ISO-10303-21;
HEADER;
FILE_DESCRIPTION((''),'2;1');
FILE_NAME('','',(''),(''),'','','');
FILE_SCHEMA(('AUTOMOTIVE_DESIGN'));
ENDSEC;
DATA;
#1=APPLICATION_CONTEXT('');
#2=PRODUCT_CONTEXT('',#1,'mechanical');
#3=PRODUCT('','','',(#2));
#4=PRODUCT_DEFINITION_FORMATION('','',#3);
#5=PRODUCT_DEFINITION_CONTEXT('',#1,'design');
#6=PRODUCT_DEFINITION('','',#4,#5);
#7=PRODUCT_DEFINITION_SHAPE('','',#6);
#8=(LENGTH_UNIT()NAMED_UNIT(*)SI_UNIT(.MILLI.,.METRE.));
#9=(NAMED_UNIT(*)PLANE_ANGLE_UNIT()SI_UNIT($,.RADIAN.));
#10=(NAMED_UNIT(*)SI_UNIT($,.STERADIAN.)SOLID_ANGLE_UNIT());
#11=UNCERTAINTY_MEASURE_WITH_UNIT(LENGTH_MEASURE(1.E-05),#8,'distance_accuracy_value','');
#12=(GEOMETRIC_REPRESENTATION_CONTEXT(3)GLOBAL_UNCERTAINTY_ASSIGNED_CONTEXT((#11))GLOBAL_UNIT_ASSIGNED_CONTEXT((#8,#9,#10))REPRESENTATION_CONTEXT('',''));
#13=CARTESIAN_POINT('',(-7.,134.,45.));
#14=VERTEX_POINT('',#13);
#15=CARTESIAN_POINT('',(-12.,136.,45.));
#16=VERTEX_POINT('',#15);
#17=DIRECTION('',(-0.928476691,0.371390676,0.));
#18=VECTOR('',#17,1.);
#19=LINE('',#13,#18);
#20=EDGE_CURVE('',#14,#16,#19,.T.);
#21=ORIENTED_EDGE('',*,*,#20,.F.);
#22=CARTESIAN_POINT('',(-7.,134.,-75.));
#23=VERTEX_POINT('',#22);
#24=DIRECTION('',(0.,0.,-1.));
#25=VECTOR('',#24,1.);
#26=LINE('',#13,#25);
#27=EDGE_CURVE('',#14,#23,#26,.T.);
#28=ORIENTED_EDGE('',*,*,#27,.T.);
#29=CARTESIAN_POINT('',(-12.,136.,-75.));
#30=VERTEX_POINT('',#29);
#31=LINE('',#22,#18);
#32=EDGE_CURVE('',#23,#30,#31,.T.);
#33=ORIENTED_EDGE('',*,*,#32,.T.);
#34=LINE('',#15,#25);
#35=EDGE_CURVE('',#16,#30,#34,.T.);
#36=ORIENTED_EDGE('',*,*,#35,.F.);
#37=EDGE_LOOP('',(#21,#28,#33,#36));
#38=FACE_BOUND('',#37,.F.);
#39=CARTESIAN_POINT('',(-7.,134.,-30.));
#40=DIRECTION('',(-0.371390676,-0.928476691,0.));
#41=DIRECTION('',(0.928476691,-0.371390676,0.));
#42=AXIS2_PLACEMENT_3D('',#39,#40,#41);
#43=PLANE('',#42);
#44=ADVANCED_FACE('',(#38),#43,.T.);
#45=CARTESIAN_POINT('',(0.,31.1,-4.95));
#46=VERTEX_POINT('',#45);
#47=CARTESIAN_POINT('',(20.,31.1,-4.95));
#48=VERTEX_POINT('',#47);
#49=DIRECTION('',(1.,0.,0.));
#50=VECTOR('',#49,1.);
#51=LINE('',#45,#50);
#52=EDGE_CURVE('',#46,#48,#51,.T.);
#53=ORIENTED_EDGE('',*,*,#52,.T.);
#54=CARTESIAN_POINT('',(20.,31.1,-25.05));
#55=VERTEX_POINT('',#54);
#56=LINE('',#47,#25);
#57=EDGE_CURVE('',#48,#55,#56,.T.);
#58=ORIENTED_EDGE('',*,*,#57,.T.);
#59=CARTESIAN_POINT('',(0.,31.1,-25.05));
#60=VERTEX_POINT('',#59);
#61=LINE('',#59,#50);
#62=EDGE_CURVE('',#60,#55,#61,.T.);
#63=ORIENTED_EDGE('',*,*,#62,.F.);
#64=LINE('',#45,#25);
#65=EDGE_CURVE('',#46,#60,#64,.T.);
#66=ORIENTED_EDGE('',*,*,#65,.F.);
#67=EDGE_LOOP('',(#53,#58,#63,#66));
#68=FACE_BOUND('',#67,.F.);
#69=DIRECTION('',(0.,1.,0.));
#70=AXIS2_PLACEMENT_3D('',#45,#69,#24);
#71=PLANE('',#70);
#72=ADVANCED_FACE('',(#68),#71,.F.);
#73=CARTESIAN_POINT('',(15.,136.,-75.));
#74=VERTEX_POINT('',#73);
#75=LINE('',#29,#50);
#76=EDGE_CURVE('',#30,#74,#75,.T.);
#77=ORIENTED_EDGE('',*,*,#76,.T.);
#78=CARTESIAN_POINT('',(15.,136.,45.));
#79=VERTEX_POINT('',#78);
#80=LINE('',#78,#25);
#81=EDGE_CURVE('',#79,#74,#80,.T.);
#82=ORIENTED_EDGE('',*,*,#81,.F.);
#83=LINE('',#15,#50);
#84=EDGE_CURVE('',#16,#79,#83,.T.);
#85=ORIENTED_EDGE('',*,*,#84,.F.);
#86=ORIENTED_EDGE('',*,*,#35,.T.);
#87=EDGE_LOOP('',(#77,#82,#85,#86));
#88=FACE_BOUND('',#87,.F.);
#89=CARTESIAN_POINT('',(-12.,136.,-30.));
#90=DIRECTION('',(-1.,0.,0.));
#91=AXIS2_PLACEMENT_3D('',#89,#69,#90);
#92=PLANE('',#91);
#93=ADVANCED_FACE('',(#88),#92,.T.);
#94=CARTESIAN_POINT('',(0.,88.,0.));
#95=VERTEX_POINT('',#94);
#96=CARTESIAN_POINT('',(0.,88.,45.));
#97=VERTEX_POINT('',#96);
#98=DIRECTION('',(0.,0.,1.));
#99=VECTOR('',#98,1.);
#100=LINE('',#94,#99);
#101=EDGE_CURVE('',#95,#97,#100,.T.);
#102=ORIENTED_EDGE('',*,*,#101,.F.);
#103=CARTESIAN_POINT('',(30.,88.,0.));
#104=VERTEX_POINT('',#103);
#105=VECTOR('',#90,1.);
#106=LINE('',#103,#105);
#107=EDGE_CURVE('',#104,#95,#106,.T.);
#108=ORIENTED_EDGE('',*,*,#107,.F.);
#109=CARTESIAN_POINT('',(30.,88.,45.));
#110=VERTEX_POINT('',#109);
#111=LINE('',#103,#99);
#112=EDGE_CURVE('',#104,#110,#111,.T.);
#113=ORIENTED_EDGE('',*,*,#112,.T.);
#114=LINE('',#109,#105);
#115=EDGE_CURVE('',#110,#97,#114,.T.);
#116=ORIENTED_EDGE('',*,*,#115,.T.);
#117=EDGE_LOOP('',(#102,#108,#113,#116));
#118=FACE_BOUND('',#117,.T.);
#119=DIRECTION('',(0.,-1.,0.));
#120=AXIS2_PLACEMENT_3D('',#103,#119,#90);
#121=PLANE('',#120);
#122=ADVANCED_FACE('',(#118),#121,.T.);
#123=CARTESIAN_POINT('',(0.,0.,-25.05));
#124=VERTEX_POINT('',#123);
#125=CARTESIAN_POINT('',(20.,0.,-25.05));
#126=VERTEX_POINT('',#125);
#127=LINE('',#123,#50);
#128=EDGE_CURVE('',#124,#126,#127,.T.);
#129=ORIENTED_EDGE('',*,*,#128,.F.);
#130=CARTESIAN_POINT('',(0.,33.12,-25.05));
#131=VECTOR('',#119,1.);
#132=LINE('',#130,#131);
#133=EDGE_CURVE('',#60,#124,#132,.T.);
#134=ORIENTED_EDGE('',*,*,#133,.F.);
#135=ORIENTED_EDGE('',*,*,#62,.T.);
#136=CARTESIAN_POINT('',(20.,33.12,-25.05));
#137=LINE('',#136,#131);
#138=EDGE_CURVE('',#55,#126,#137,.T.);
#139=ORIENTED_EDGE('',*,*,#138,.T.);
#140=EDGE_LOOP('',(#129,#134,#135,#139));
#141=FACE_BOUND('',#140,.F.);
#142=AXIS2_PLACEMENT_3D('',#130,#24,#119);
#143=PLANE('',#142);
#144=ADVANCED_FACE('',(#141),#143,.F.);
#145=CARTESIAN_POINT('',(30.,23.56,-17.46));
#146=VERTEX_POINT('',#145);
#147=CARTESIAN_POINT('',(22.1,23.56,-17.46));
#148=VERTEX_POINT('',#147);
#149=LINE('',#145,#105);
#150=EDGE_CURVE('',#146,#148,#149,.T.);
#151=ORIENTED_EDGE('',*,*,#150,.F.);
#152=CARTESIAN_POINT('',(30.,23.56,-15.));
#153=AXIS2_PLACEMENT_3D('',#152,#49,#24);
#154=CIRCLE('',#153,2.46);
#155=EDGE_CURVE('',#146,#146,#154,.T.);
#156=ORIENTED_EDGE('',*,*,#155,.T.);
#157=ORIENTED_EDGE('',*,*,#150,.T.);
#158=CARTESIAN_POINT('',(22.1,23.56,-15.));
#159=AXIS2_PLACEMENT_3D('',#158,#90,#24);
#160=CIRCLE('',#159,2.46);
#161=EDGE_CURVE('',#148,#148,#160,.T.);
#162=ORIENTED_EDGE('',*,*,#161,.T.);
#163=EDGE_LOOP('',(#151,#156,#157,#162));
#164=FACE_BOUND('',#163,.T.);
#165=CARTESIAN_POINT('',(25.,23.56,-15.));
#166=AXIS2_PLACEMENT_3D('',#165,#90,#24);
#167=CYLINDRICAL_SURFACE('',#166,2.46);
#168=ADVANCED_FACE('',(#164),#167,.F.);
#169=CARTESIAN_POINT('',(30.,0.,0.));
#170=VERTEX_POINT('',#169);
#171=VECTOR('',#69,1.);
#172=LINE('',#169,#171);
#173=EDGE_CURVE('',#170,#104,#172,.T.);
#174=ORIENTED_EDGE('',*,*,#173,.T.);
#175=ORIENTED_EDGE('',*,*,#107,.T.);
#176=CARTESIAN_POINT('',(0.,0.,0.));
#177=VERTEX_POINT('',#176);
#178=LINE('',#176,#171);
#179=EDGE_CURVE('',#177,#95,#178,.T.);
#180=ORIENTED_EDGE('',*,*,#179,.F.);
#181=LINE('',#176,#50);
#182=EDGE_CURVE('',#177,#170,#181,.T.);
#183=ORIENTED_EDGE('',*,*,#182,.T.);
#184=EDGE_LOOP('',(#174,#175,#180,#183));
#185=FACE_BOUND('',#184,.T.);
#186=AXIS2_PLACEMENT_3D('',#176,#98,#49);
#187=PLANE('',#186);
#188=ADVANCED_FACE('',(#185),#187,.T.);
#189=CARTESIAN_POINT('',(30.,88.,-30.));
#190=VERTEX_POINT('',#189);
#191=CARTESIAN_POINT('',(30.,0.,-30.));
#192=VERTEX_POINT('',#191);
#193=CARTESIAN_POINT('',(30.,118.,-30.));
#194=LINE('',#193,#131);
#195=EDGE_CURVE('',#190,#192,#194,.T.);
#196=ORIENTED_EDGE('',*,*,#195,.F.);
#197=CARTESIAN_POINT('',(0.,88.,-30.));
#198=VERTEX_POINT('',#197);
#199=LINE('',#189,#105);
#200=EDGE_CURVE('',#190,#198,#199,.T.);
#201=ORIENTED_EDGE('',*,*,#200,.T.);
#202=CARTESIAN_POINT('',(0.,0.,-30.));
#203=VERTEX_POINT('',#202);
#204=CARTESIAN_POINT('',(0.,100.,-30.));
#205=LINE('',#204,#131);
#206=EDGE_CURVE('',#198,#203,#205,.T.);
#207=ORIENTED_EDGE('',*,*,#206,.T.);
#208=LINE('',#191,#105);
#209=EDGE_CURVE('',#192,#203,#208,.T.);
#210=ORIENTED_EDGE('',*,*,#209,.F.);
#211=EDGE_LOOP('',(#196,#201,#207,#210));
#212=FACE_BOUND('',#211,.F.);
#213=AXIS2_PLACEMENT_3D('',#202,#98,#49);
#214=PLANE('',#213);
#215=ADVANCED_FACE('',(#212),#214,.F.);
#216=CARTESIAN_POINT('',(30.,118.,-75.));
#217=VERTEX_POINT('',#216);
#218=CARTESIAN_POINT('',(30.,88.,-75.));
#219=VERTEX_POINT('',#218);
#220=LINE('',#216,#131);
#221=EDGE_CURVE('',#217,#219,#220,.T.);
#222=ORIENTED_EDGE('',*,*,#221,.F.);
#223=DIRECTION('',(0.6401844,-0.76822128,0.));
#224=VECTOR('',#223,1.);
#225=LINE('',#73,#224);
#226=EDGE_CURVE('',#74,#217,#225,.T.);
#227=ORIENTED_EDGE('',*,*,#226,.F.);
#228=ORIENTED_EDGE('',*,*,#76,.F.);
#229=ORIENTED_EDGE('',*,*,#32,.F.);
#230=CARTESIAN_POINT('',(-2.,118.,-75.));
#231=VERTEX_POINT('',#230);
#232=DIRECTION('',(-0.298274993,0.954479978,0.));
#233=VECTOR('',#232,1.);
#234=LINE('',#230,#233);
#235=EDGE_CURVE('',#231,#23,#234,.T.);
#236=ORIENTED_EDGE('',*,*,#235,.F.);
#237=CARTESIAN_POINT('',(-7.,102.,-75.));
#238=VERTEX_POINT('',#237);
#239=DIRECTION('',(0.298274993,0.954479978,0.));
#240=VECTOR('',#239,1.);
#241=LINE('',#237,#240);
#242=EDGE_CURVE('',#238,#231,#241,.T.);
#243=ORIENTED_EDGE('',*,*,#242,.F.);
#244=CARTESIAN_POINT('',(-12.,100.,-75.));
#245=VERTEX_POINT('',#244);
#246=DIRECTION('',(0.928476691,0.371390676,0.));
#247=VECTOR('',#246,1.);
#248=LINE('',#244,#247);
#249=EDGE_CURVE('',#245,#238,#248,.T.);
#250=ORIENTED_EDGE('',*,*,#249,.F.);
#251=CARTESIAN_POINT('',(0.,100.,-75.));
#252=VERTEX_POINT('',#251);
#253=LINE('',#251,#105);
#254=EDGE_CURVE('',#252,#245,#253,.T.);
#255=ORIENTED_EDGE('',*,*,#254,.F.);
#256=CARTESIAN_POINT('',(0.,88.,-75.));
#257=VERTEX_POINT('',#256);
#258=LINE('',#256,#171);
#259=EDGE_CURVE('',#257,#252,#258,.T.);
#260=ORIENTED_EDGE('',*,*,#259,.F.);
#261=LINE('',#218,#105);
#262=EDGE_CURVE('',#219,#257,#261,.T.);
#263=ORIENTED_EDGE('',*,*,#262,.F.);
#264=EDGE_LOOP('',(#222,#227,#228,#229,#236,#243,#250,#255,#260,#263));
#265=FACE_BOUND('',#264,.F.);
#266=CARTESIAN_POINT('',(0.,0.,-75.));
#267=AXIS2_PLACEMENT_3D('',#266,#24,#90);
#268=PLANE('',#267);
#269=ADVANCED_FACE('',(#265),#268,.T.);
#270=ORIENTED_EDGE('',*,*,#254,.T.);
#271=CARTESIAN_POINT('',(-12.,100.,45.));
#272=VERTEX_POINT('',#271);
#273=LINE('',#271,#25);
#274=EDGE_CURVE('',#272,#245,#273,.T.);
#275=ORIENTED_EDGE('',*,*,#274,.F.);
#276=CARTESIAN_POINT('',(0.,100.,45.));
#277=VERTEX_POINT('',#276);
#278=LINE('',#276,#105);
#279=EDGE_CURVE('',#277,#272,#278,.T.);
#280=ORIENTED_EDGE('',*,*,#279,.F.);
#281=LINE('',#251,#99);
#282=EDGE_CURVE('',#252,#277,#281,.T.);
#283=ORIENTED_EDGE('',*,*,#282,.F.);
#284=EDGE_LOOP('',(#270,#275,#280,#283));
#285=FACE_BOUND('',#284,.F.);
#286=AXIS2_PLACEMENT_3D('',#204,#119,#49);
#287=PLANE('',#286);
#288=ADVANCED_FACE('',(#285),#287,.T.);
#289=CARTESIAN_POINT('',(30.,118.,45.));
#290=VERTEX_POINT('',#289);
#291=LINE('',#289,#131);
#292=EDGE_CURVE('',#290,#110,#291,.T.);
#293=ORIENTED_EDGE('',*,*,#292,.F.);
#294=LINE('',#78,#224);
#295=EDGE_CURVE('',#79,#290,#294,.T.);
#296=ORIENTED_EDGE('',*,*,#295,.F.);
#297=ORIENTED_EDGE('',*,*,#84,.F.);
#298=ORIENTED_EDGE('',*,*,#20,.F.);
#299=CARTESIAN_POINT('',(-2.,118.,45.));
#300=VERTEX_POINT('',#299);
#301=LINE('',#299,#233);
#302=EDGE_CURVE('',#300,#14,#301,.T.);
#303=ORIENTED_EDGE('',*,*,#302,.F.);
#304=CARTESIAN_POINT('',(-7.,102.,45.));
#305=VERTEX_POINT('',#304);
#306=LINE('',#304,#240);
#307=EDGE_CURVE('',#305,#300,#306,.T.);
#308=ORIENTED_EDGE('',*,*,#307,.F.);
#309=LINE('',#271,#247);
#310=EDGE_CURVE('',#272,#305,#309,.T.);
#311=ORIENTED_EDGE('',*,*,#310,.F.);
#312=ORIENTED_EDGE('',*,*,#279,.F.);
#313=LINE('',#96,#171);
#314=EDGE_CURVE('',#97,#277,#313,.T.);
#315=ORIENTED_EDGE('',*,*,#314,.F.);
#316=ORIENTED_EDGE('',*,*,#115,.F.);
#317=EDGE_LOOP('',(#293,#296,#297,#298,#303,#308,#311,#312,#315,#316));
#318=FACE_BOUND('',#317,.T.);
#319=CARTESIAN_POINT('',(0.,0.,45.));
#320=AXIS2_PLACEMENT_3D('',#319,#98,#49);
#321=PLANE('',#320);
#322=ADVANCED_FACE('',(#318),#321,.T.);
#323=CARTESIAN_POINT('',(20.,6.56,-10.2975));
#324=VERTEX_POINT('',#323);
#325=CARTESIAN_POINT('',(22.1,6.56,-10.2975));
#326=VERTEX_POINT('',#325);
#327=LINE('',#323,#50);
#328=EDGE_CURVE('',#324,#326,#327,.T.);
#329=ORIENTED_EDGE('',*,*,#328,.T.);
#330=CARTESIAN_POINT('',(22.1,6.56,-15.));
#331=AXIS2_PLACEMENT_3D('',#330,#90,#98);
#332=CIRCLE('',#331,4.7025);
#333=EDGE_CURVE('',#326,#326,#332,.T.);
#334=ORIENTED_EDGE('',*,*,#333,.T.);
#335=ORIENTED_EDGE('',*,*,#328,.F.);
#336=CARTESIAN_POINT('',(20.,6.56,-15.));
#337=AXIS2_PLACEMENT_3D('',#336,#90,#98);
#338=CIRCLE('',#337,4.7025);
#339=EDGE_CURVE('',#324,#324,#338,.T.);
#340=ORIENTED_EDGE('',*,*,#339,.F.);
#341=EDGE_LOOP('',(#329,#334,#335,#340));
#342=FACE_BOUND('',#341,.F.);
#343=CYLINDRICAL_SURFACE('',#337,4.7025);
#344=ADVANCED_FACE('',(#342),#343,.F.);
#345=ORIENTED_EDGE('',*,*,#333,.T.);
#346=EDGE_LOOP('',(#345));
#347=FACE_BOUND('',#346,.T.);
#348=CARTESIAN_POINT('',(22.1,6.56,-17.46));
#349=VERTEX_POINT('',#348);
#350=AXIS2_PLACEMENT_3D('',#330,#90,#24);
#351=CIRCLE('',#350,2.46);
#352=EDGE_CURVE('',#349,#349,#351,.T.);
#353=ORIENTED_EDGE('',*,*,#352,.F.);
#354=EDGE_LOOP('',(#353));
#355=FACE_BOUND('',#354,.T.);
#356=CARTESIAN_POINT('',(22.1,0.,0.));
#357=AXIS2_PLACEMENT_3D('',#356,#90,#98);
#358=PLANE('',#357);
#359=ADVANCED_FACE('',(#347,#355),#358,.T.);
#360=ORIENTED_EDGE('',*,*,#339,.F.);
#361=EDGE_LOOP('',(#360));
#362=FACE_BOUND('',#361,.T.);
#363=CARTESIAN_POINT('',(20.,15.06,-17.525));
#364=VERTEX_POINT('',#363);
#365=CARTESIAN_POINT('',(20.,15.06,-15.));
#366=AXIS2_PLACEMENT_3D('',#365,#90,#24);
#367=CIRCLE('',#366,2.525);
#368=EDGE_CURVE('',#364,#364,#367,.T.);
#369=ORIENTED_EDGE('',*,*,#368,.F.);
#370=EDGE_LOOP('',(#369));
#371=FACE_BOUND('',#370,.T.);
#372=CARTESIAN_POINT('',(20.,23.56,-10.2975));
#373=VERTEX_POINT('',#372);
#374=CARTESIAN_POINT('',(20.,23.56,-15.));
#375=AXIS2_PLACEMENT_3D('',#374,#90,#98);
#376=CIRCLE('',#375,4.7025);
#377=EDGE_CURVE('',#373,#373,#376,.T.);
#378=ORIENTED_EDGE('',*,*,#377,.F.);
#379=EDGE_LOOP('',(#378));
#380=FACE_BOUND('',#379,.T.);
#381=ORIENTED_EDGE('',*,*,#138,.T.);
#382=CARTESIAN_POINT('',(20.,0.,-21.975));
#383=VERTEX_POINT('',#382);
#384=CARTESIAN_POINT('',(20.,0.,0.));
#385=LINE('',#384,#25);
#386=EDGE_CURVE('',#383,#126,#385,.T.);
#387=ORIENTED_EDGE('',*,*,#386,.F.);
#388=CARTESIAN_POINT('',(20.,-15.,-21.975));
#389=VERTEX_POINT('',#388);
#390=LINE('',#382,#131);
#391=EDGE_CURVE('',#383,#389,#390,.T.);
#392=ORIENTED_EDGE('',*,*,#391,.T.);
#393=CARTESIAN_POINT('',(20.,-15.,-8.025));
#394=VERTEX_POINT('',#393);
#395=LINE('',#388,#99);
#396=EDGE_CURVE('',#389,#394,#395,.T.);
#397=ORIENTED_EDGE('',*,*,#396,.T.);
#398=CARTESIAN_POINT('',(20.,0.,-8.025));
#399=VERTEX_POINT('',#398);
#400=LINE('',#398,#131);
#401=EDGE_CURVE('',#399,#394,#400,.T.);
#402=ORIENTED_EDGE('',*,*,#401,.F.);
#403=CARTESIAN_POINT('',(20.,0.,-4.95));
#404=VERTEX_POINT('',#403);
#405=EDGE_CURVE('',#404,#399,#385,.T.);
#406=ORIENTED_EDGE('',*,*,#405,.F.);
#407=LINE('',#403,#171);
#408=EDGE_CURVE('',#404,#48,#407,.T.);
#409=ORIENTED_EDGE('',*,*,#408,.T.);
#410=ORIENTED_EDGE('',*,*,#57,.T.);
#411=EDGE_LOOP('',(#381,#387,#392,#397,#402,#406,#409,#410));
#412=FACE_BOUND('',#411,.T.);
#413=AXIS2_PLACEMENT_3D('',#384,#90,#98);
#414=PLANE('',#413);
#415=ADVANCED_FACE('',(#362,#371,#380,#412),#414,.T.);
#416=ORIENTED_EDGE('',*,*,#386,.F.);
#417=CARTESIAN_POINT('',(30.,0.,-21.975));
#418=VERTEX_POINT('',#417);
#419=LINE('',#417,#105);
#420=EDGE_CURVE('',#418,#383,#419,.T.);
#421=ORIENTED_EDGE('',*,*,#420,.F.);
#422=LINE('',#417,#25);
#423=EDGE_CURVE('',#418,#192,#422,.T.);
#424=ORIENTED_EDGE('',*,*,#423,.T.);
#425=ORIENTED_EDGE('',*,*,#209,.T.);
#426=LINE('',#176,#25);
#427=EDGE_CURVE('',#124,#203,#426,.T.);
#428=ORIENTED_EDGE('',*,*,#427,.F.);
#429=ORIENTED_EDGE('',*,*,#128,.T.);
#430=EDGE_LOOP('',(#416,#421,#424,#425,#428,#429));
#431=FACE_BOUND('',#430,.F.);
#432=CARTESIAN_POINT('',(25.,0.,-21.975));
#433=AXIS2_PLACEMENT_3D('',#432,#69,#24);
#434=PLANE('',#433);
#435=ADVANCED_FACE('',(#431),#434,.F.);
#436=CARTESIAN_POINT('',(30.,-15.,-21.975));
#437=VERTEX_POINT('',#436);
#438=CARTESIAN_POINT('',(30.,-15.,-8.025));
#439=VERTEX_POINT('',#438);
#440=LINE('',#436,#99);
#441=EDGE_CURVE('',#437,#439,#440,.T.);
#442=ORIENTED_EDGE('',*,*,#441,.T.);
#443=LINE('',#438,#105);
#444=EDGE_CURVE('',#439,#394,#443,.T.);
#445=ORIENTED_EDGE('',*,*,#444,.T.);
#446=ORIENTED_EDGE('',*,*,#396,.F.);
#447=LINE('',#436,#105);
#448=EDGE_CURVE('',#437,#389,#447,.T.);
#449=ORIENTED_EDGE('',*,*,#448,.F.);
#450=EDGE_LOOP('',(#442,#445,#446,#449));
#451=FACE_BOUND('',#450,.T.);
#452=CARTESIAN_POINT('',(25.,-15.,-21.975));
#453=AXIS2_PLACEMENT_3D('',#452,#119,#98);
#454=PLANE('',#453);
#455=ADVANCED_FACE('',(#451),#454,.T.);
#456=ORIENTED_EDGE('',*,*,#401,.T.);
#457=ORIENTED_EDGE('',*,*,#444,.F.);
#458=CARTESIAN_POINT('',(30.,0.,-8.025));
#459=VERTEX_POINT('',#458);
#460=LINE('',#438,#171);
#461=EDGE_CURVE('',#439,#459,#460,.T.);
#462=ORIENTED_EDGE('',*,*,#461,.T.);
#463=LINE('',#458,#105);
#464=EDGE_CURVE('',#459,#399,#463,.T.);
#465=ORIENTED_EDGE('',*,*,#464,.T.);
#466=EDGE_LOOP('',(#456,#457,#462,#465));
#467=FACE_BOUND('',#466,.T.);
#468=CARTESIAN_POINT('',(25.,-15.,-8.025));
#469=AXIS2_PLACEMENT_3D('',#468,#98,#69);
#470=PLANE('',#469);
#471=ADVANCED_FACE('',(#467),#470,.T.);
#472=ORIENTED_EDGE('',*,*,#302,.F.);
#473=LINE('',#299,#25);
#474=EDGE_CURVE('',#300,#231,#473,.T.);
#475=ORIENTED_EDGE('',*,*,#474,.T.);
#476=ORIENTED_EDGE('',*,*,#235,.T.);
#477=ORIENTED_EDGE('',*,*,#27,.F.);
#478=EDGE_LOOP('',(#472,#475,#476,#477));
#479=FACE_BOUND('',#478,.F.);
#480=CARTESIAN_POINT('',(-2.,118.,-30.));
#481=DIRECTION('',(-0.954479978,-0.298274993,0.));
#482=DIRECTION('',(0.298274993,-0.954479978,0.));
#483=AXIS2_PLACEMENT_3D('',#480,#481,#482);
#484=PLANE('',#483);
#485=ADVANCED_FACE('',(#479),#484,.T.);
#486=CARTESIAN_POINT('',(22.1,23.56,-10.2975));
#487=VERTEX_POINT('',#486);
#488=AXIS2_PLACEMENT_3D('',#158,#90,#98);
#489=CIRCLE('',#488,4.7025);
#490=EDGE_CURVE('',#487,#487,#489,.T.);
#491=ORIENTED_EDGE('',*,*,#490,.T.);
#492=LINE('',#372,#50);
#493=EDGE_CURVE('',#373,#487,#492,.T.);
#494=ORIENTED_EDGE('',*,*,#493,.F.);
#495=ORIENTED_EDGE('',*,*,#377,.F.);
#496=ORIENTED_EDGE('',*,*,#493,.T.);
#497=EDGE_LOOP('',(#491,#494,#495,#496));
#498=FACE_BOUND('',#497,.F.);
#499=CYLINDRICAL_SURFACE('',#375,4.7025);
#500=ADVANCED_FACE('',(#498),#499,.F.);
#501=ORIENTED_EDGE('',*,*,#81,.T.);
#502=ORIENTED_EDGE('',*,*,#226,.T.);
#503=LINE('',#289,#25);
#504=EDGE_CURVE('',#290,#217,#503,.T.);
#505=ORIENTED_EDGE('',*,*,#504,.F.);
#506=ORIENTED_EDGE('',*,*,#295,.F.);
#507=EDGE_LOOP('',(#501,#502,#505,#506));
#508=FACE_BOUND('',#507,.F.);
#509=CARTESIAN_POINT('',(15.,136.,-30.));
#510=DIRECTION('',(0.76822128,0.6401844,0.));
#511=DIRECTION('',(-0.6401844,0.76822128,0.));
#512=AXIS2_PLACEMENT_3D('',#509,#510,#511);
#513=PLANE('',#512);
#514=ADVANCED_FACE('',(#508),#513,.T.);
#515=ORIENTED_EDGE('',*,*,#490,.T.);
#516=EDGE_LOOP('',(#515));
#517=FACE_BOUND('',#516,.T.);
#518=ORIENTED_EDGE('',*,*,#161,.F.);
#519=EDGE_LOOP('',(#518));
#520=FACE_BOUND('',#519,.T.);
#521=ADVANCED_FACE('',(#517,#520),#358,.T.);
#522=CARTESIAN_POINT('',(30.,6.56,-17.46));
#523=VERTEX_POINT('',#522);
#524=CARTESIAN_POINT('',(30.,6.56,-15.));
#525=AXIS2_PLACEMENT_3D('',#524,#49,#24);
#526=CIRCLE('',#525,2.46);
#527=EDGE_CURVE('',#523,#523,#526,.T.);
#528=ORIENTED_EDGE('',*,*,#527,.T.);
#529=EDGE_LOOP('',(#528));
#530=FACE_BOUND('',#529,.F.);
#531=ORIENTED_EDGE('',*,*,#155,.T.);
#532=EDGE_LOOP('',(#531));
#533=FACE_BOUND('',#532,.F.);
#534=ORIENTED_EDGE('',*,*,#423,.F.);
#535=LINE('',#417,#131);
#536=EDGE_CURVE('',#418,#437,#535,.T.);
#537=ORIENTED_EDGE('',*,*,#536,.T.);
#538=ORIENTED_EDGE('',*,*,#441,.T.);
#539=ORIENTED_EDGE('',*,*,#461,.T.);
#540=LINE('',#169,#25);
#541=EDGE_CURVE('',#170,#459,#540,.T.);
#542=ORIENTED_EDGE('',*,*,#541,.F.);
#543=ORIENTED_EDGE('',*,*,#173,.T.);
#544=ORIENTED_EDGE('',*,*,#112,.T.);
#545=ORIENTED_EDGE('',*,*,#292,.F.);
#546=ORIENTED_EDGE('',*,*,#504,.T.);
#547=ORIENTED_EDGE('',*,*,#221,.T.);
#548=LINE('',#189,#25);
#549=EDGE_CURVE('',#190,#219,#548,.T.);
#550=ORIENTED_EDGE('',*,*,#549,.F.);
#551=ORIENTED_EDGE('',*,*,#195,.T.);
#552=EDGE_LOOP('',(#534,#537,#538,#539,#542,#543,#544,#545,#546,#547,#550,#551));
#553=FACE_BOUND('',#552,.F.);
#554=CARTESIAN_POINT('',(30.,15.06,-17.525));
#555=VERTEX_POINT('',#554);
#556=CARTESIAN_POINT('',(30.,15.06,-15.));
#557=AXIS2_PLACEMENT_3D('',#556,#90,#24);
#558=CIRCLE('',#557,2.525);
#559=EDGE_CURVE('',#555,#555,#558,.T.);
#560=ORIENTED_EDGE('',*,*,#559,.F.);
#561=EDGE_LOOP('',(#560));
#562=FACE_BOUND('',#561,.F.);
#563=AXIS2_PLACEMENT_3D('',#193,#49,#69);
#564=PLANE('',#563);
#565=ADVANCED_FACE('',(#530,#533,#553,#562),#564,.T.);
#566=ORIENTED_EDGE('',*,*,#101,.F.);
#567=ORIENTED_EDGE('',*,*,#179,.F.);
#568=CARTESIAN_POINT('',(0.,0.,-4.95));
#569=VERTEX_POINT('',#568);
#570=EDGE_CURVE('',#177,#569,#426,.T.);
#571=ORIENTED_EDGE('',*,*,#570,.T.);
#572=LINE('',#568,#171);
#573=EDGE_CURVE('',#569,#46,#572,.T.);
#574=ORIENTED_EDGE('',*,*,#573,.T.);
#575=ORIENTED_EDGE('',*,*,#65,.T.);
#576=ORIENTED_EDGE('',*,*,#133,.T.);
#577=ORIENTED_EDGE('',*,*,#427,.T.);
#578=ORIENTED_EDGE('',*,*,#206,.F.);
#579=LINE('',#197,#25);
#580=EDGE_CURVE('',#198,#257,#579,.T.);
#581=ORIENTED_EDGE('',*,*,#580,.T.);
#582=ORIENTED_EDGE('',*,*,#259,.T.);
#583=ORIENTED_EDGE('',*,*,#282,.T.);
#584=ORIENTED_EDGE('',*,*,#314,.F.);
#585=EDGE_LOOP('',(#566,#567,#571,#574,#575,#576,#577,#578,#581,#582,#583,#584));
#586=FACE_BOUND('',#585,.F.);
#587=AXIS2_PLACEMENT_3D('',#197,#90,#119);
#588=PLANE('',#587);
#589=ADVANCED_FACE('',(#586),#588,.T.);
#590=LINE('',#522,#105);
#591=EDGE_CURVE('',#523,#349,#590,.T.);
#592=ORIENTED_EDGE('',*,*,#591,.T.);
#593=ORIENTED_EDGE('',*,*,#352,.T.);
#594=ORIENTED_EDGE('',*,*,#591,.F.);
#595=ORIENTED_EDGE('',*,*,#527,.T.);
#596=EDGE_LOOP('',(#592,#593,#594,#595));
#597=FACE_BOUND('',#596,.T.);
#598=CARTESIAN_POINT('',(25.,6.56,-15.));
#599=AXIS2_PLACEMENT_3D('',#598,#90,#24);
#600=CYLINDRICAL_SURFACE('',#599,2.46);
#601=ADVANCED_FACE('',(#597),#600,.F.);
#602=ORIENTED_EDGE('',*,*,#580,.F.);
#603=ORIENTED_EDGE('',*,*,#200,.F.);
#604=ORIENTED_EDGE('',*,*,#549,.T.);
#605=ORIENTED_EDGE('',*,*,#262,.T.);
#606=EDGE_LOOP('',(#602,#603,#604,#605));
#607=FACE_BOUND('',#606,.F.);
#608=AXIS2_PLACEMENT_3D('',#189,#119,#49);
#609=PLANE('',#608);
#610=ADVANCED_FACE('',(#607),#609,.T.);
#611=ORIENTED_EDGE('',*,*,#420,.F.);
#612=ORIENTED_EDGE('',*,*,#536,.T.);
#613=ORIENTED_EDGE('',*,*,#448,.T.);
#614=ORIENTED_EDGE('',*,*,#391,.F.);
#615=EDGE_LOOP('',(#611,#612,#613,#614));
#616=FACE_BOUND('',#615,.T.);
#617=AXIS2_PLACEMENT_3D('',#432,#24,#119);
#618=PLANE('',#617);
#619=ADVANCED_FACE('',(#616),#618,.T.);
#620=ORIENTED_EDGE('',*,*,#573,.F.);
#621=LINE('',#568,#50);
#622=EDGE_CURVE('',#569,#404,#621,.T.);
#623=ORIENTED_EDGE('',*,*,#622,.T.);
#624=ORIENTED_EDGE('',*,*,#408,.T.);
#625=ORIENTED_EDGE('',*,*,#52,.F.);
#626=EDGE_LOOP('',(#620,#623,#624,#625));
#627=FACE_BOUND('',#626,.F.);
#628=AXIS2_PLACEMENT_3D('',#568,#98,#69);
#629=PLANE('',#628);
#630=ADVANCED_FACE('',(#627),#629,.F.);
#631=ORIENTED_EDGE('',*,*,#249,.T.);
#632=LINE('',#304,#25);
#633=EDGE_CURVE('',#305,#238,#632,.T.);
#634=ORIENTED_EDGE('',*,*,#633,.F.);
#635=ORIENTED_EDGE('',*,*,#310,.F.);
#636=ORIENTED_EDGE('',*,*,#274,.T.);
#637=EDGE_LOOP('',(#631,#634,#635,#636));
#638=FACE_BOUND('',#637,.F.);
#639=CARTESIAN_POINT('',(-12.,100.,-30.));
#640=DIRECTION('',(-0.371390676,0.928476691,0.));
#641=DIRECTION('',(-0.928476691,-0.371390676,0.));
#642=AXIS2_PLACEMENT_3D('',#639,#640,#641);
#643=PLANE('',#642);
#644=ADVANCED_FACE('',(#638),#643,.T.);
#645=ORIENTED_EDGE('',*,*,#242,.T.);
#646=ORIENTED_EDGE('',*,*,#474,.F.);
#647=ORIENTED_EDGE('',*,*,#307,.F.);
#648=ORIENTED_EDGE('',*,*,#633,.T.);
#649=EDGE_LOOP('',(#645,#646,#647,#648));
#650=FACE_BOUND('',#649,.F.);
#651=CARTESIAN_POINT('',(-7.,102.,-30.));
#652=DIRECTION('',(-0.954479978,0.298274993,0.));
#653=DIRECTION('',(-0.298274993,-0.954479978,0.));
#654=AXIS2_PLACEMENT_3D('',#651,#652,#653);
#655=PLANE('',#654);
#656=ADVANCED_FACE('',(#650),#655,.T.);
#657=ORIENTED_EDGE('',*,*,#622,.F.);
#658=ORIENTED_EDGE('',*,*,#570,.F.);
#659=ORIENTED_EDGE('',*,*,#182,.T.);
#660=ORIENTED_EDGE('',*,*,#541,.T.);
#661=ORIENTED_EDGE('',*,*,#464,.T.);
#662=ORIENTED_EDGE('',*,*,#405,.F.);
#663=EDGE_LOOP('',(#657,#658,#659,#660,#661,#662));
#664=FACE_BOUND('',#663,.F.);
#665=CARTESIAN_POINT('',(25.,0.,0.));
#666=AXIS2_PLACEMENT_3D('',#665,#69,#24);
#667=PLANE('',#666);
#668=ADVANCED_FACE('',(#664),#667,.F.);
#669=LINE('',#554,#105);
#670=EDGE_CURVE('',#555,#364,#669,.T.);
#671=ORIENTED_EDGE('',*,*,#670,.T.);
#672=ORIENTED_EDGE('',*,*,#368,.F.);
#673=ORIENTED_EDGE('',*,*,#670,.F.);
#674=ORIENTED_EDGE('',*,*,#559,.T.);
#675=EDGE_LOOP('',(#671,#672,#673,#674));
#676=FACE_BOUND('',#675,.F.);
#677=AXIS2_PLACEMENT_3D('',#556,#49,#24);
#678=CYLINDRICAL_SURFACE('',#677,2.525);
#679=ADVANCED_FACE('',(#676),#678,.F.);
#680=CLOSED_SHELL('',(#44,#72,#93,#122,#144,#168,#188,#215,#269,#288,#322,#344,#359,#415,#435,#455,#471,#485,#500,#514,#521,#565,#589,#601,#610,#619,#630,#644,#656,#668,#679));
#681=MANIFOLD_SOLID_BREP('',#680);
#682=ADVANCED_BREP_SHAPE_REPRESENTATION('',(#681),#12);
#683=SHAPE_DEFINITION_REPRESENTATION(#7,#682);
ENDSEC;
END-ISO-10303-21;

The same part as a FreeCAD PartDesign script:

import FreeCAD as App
import Part
import Sketcher
Q = App.Units.Quantity

doc = App.newDocument("Part")
body = doc.addObject("PartDesign::Body", "Body")

# Sketch on XY plane
sketch1 = doc.addObject("Sketcher::SketchObject", "Sketch")
body.addObject(sketch1)
sketch1.AttachmentSupport = (doc.XY_Plane, [""])
sketch1.MapMode = "FlatFace"
sketch1.addGeometry(Part.LineSegment(App.Vector(0, 40, 0), App.Vector(0, 0, 0)), False)
sketch1.addGeometry(Part.LineSegment(App.Vector(0, 0, 0), App.Vector(25, 0, 0)), False)
sketch1.addGeometry(Part.LineSegment(App.Vector(25, 0, 0), App.Vector(25, 40, 0)), False)
sketch1.addGeometry(Part.LineSegment(App.Vector(25, 40, 0), App.Vector(0, 40, 0)), False)
sketch1.addConstraint(Sketcher.Constraint("Coincident", 0, 2, 1, 1))
sketch1.addConstraint(Sketcher.Constraint("Coincident", 1, 2, 2, 1))
sketch1.addConstraint(Sketcher.Constraint("Coincident", 2, 2, 3, 1))
sketch1.addConstraint(Sketcher.Constraint("Coincident", 3, 2, 0, 1))
sketch1.addConstraint(Sketcher.Constraint("Vertical", 0))
sketch1.addConstraint(Sketcher.Constraint("Horizontal", 1))
sketch1.addConstraint(Sketcher.Constraint("Vertical", 2))
sketch1.addConstraint(Sketcher.Constraint("Horizontal", 3))
sketch1.addConstraint(Sketcher.Constraint("Coincident", 0, 2, -1, 1))
sketch1.addConstraint(Sketcher.Constraint("DistanceX", 1, 1, 1, 2, Q("25 mm")))
sketch1.addConstraint(Sketcher.Constraint("DistanceY", 0, 2, 0, 1, Q("40 mm")))
pad1 = doc.addObject("PartDesign::Pad", "Pad")
body.addObject(pad1)
pad1.Profile = sketch1
pad1.Length = 30
pad1.Reversed = True

# Sketch on YZ plane
sketch2 = doc.addObject("Sketcher::SketchObject", "Sketch001")
body.addObject(sketch2)
sketch2.AttachmentSupport = (doc.YZ_Plane, [""])
sketch2.MapMode = "FlatFace"
sketch2.AttachmentOffset = App.Placement(App.Vector(0, 0, 25), App.Rotation())
sketch2.addGeometry(Part.Circle(App.Vector(6.6, -15, 0), App.Vector(0, 0, 1), 2.5), False)
sketch2.addConstraint(Sketcher.Constraint("Diameter", 0, Q("4.92 mm")))
sketch2.addConstraint(Sketcher.Constraint("DistanceY", 0, 3, -1, 1, Q("15 mm")))
sketch2.addConstraint(Sketcher.Constraint("DistanceX", -1, 1, 0, 3, Q("6.56 mm")))
pocket1 = doc.addObject("PartDesign::Pocket", "Pocket")
body.addObject(pocket1)
pocket1.Profile = sketch2
pocket1.Length = 30

# Sketch on YZ plane
sketch3 = doc.addObject("Sketcher::SketchObject", "Sketch002")
body.addObject(sketch3)
sketch3.AttachmentSupport = (doc.YZ_Plane, [""])
sketch3.MapMode = "FlatFace"
sketch3.addGeometry(Part.LineSegment(App.Vector(0, -25, 0), App.Vector(0, -5, 0)), False)
sketch3.addGeometry(Part.LineSegment(App.Vector(0, -5, 0), App.Vector(33, -5, 0)), False)
sketch3.addGeometry(Part.LineSegment(App.Vector(33, -5, 0), App.Vector(33, -25, 0)), False)
sketch3.addGeometry(Part.LineSegment(App.Vector(33, -25, 0), App.Vector(0, -25, 0)), False)
sketch3.addConstraint(Sketcher.Constraint("Coincident", 0, 2, 1, 1))
sketch3.addConstraint(Sketcher.Constraint("Coincident", 1, 2, 2, 1))
sketch3.addConstraint(Sketcher.Constraint("Coincident", 2, 2, 3, 1))
sketch3.addConstraint(Sketcher.Constraint("Coincident", 3, 2, 0, 1))
sketch3.addConstraint(Sketcher.Constraint("Vertical", 0))
sketch3.addConstraint(Sketcher.Constraint("Horizontal", 1))
sketch3.addConstraint(Sketcher.Constraint("Vertical", 2))
sketch3.addConstraint(Sketcher.Constraint("Horizontal", 3))
sketch3.addConstraint(Sketcher.Constraint("PointOnObject", 0, 2, -2))
sketch3.addConstraint(Sketcher.Constraint("DistanceY", 0, 1, 0, 2, Q("20.1 mm")))
sketch3.addConstraint(Sketcher.Constraint("DistanceX", 1, 1, 1, 2, Q("33.12 mm")))
sketch3.addConstraint(Sketcher.Constraint("DistanceY", 0, 2, -1, 1, Q("4.95 mm")))
pocket2 = doc.addObject("PartDesign::Pocket", "Pocket001")
body.addObject(pocket2)
pocket2.Profile = sketch3
pocket2.Length = 20
pocket2.Reversed = True

# Sketch on XZ plane
sketch4 = doc.addObject("Sketcher::SketchObject", "Sketch003")
body.addObject(sketch4)
sketch4.AttachmentSupport = (doc.XZ_Plane, [""])
sketch4.MapMode = "FlatFace"
sketch4.addGeometry(Part.LineSegment(App.Vector(25, -8, 0), App.Vector(20, -8, 0)), False)
sketch4.addGeometry(Part.LineSegment(App.Vector(20, -8, 0), App.Vector(20, -22, 0)), False)
sketch4.addGeometry(Part.LineSegment(App.Vector(20, -22, 0), App.Vector(25, -22, 0)), False)
sketch4.addGeometry(Part.LineSegment(App.Vector(25, -22, 0), App.Vector(25, -8, 0)), False)
sketch4.addConstraint(Sketcher.Constraint("Coincident", 0, 2, 1, 1))
sketch4.addConstraint(Sketcher.Constraint("Coincident", 1, 2, 2, 1))
sketch4.addConstraint(Sketcher.Constraint("Coincident", 2, 2, 3, 1))
sketch4.addConstraint(Sketcher.Constraint("Coincident", 3, 2, 0, 1))
sketch4.addConstraint(Sketcher.Constraint("Horizontal", 0))
sketch4.addConstraint(Sketcher.Constraint("Vertical", 1))
sketch4.addConstraint(Sketcher.Constraint("Horizontal", 2))
sketch4.addConstraint(Sketcher.Constraint("Vertical", 3))
sketch4.addConstraint(Sketcher.Constraint("DistanceY", 1, 2, 1, 1, Q("13.95 mm")))
sketch4.addConstraint(Sketcher.Constraint("DistanceX", 0, 2, 0, 1, Q("5 mm")))
sketch4.addConstraint(Sketcher.Constraint("DistanceX", -1, 1, 0, 2, Q("20 mm")))
sketch4.addConstraint(Sketcher.Constraint("DistanceY", 0, 2, -1, 1, Q("8.025 mm")))
pad2 = doc.addObject("PartDesign::Pad", "Pad001")
body.addObject(pad2)
pad2.Profile = sketch4
pad2.Length = 15

# Sketch on YZ plane
sketch5 = doc.addObject("Sketcher::SketchObject", "Sketch004")
body.addObject(sketch5)
sketch5.AttachmentSupport = (doc.YZ_Plane, [""])
sketch5.MapMode = "FlatFace"
sketch5.AttachmentOffset = App.Placement(App.Vector(0, 0, 20), App.Rotation())
sketch5.addGeometry(Part.Circle(App.Vector(6.6, -15, 0), App.Vector(0, 0, 1), 4.7), False)
sketch5.addGeometry(Part.Circle(App.Vector(6.6, -15, 0), App.Vector(0, 0, 1), 2.5), False)
sketch5.addConstraint(Sketcher.Constraint("Coincident", 1, 3, 0, 3))
sketch5.addConstraint(Sketcher.Constraint("Diameter", 0, Q("9.405 mm")))
sketch5.addConstraint(Sketcher.Constraint("Diameter", 1, Q("4.92 mm")))
sketch5.addConstraint(Sketcher.Constraint("DistanceY", 0, 3, -1, 1, Q("15 mm")))
sketch5.addConstraint(Sketcher.Constraint("DistanceX", -1, 1, 0, 3, Q("6.56 mm")))
pocket3 = doc.addObject("PartDesign::Pocket", "Pocket002")
body.addObject(pocket3)
pocket3.Profile = sketch5
pocket3.Length = 2.1
pocket3.Reversed = True

# Sketch on YZ plane
sketch6 = doc.addObject("Sketcher::SketchObject", "Sketch005")
body.addObject(sketch6)
sketch6.AttachmentSupport = (doc.YZ_Plane, [""])
sketch6.MapMode = "FlatFace"
sketch6.AttachmentOffset = App.Placement(App.Vector(0, 0, 25), App.Rotation())
sketch6.addGeometry(Part.Circle(App.Vector(23.6, -15, 0), App.Vector(0, 0, 1), 2.5), False)
sketch6.addConstraint(Sketcher.Constraint("Diameter", 0, Q("4.92 mm")))
sketch6.addConstraint(Sketcher.Constraint("DistanceY", 0, 3, -1, 1, Q("15 mm")))
sketch6.addConstraint(Sketcher.Constraint("DistanceX", -1, 1, 0, 3, Q("23.56 mm")))
pocket4 = doc.addObject("PartDesign::Pocket", "Pocket003")
body.addObject(pocket4)
pocket4.Profile = sketch6
pocket4.Length = 10

# Sketch on YZ plane
sketch7 = doc.addObject("Sketcher::SketchObject", "Sketch006")
body.addObject(sketch7)
sketch7.AttachmentSupport = (doc.YZ_Plane, [""])
sketch7.MapMode = "FlatFace"
sketch7.AttachmentOffset = App.Placement(App.Vector(0, 0, 20), App.Rotation())
sketch7.addGeometry(Part.Circle(App.Vector(23.6, -15, 0), App.Vector(0, 0, 1), 4.7), False)
sketch7.addGeometry(Part.Circle(App.Vector(23.6, -15, 0), App.Vector(0, 0, 1), 2.5), False)
sketch7.addConstraint(Sketcher.Constraint("Coincident", 1, 3, 0, 3))
sketch7.addConstraint(Sketcher.Constraint("Diameter", 0, Q("9.405 mm")))
sketch7.addConstraint(Sketcher.Constraint("Diameter", 1, Q("4.92 mm")))
sketch7.addConstraint(Sketcher.Constraint("DistanceY", 0, 3, -1, 1, Q("15 mm")))
sketch7.addConstraint(Sketcher.Constraint("DistanceX", -1, 1, 0, 3, Q("23.56 mm")))
pocket5 = doc.addObject("PartDesign::Pocket", "Pocket004")
body.addObject(pocket5)
pocket5.Profile = sketch7
pocket5.Length = 2.1
pocket5.Reversed = True

# Sketch on YZ plane
sketch8 = doc.addObject("Sketcher::SketchObject", "Sketch007")
body.addObject(sketch8)
sketch8.AttachmentSupport = (doc.YZ_Plane, [""])
sketch8.MapMode = "FlatFace"
sketch8.AttachmentOffset = App.Placement(App.Vector(0, 0, 25), App.Rotation())
sketch8.addGeometry(Part.LineSegment(App.Vector(0, -30, 0), App.Vector(40, -30, 0)), False)
sketch8.addGeometry(Part.LineSegment(App.Vector(40, -30, 0), App.Vector(40, 0, 0)), False)
sketch8.addGeometry(Part.LineSegment(App.Vector(40, 0, 0), App.Vector(0, 0, 0)), False)
sketch8.addGeometry(Part.LineSegment(App.Vector(0, 0, 0), App.Vector(0, -8, 0)), False)
sketch8.addGeometry(Part.LineSegment(App.Vector(0, -8, 0), App.Vector(-15, -8, 0)), False)
sketch8.addGeometry(Part.LineSegment(App.Vector(-15, -8, 0), App.Vector(-15, -22, 0)), False)
sketch8.addGeometry(Part.LineSegment(App.Vector(-15, -22, 0), App.Vector(0, -22, 0)), False)
sketch8.addGeometry(Part.LineSegment(App.Vector(0, -22, 0), App.Vector(0, -30, 0)), False)
sketch8.addGeometry(Part.Circle(App.Vector(6.6, -15, 0), App.Vector(0, 0, 1), 2.5), False)
sketch8.addGeometry(Part.Circle(App.Vector(23.6, -15, 0), App.Vector(0, 0, 1), 2.5), False)
sketch8.addConstraint(Sketcher.Constraint("Coincident", 0, 2, 1, 1))
sketch8.addConstraint(Sketcher.Constraint("Coincident", 1, 2, 2, 1))
sketch8.addConstraint(Sketcher.Constraint("Coincident", 2, 2, 3, 1))
sketch8.addConstraint(Sketcher.Constraint("Coincident", 3, 2, 4, 1))
sketch8.addConstraint(Sketcher.Constraint("Coincident", 4, 2, 5, 1))
sketch8.addConstraint(Sketcher.Constraint("Coincident", 5, 2, 6, 1))
sketch8.addConstraint(Sketcher.Constraint("Coincident", 6, 2, 7, 1))
sketch8.addConstraint(Sketcher.Constraint("Coincident", 7, 2, 0, 1))
sketch8.addConstraint(Sketcher.Constraint("Horizontal", 0))
sketch8.addConstraint(Sketcher.Constraint("Vertical", 1))
sketch8.addConstraint(Sketcher.Constraint("Horizontal", 2))
sketch8.addConstraint(Sketcher.Constraint("Vertical", 3))
sketch8.addConstraint(Sketcher.Constraint("Horizontal", 4))
sketch8.addConstraint(Sketcher.Constraint("Vertical", 5))
sketch8.addConstraint(Sketcher.Constraint("Horizontal", 6))
sketch8.addConstraint(Sketcher.Constraint("Vertical", 7))
sketch8.addConstraint(Sketcher.Constraint("Coincident", 2, 2, -1, 1))
sketch8.addConstraint(Sketcher.Constraint("Equal", 8, 9))
sketch8.addConstraint(Sketcher.Constraint("PointOnObject", 6, 2, -2))
sketch8.addConstraint(Sketcher.Constraint("Horizontal", 8, 3, 9, 3))
sketch8.addConstraint(Sketcher.Constraint("Equal", 3, 7))
sketch8.addConstraint(Sketcher.Constraint("Diameter", 8, Q("4.92 mm")))
sketch8.addConstraint(Sketcher.Constraint("DistanceX", 0, 1, 0, 2, Q("40 mm")))
sketch8.addConstraint(Sketcher.Constraint("DistanceX", 4, 2, 4, 1, Q("15 mm")))
sketch8.addConstraint(Sketcher.Constraint("DistanceY", 1, 1, 1, 2, Q("30 mm")))
sketch8.addConstraint(Sketcher.Constraint("DistanceY", 8, 3, -1, 1, Q("15 mm")))
sketch8.addConstraint(Sketcher.Constraint("DistanceX", 8, 3, 9, 3, Q("17 mm")))
sketch8.addConstraint(Sketcher.Constraint("DistanceY", 5, 2, 5, 1, Q("13.95 mm")))
sketch8.addConstraint(Sketcher.Constraint("DistanceX", -1, 1, 8, 3, Q("6.56 mm")))
pad3 = doc.addObject("PartDesign::Pad", "Pad002")
body.addObject(pad3)
pad3.Profile = sketch8
pad3.Length = 5

# Sketch on XZ plane
sketch9 = doc.addObject("Sketcher::SketchObject", "Sketch008")
body.addObject(sketch9)
sketch9.AttachmentSupport = (doc.XZ_Plane, [""])
sketch9.MapMode = "FlatFace"
sketch9.AttachmentOffset = App.Placement(App.Vector(0, 0, -40), App.Rotation())
sketch9.addGeometry(Part.LineSegment(App.Vector(30, -30, 0), App.Vector(0, -30, 0)), False)
sketch9.addGeometry(Part.LineSegment(App.Vector(0, -30, 0), App.Vector(0, 0, 0)), False)
sketch9.addGeometry(Part.LineSegment(App.Vector(0, 0, 0), App.Vector(30, 0, 0)), False)
sketch9.addGeometry(Part.LineSegment(App.Vector(30, 0, 0), App.Vector(30, -30, 0)), False)
sketch9.addConstraint(Sketcher.Constraint("Coincident", 0, 2, 1, 1))
sketch9.addConstraint(Sketcher.Constraint("Coincident", 1, 2, 2, 1))
sketch9.addConstraint(Sketcher.Constraint("Coincident", 2, 2, 3, 1))
sketch9.addConstraint(Sketcher.Constraint("Coincident", 3, 2, 0, 1))
sketch9.addConstraint(Sketcher.Constraint("Horizontal", 0))
sketch9.addConstraint(Sketcher.Constraint("Vertical", 1))
sketch9.addConstraint(Sketcher.Constraint("Horizontal", 2))
sketch9.addConstraint(Sketcher.Constraint("Vertical", 3))
sketch9.addConstraint(Sketcher.Constraint("Coincident", 1, 2, -1, 1))
sketch9.addConstraint(Sketcher.Constraint("Equal", 2, 1))
sketch9.addConstraint(Sketcher.Constraint("DistanceX", 0, 2, 0, 1, Q("30 mm")))
pad4 = doc.addObject("PartDesign::Pad", "Pad003")
body.addObject(pad4)
pad4.Profile = sketch9
pad4.Length = 30
pad4.Reversed = True

# Sketch on YZ plane
sketch10 = doc.addObject("Sketcher::SketchObject", "Sketch009")
body.addObject(sketch10)
sketch10.AttachmentSupport = (doc.YZ_Plane, [""])
sketch10.MapMode = "FlatFace"
sketch10.AttachmentOffset = App.Placement(App.Vector(0, 0, 30), App.Rotation())
sketch10.addGeometry(Part.Circle(App.Vector(15.1, -15, 0), App.Vector(0, 0, 1), 2.5), False)
sketch10.addConstraint(Sketcher.Constraint("Diameter", 0, Q("5.05 mm")))
sketch10.addConstraint(Sketcher.Constraint("DistanceY", 0, 3, -1, 1, Q("15 mm")))
sketch10.addConstraint(Sketcher.Constraint("DistanceX", -1, 1, 0, 3, Q("15.06 mm")))
pocket6 = doc.addObject("PartDesign::Pocket", "Pocket005")
body.addObject(pocket6)
pocket6.Profile = sketch10
pocket6.Length = 30

# Sketch on XY plane
sketch11 = doc.addObject("Sketcher::SketchObject", "Sketch010")
body.addObject(sketch11)
sketch11.AttachmentSupport = (doc.XY_Plane, [""])
sketch11.MapMode = "FlatFace"
sketch11.addGeometry(Part.LineSegment(App.Vector(0, 70, 0), App.Vector(30, 70, 0)), False)
sketch11.addGeometry(Part.LineSegment(App.Vector(30, 70, 0), App.Vector(30, 118, 0)), False)
sketch11.addGeometry(Part.LineSegment(App.Vector(30, 118, 0), App.Vector(15, 136, 0)), False)
sketch11.addGeometry(Part.LineSegment(App.Vector(15, 136, 0), App.Vector(-12, 136, 0)), False)
sketch11.addGeometry(Part.LineSegment(App.Vector(-12, 136, 0), App.Vector(-7, 134, 0)), False)
sketch11.addGeometry(Part.LineSegment(App.Vector(-7, 134, 0), App.Vector(-2, 118, 0)), False)
sketch11.addGeometry(Part.LineSegment(App.Vector(-2, 118, 0), App.Vector(-7, 102, 0)), False)
sketch11.addGeometry(Part.LineSegment(App.Vector(-7, 102, 0), App.Vector(-12, 100, 0)), False)
sketch11.addGeometry(Part.LineSegment(App.Vector(-12, 100, 0), App.Vector(0, 100, 0)), False)
sketch11.addGeometry(Part.LineSegment(App.Vector(0, 100, 0), App.Vector(0, 70, 0)), False)
sketch11.addConstraint(Sketcher.Constraint("Coincident", 0, 2, 1, 1))
sketch11.addConstraint(Sketcher.Constraint("Coincident", 1, 2, 2, 1))
sketch11.addConstraint(Sketcher.Constraint("Coincident", 2, 2, 3, 1))
sketch11.addConstraint(Sketcher.Constraint("Coincident", 3, 2, 4, 1))
sketch11.addConstraint(Sketcher.Constraint("Coincident", 4, 2, 5, 1))
sketch11.addConstraint(Sketcher.Constraint("Coincident", 5, 2, 6, 1))
sketch11.addConstraint(Sketcher.Constraint("Coincident", 6, 2, 7, 1))
sketch11.addConstraint(Sketcher.Constraint("Coincident", 7, 2, 8, 1))
sketch11.addConstraint(Sketcher.Constraint("Coincident", 8, 2, 9, 1))
sketch11.addConstraint(Sketcher.Constraint("Coincident", 9, 2, 0, 1))
sketch11.addConstraint(Sketcher.Constraint("Horizontal", 0))
sketch11.addConstraint(Sketcher.Constraint("Vertical", 1))
sketch11.addConstraint(Sketcher.Constraint("Horizontal", 3))
sketch11.addConstraint(Sketcher.Constraint("Horizontal", 8))
sketch11.addConstraint(Sketcher.Constraint("Vertical", 9))
sketch11.addConstraint(Sketcher.Constraint("PointOnObject", 8, 2, -2))
sketch11.addConstraint(Sketcher.Constraint("Horizontal", 1, 2, 5, 2))
sketch11.addConstraint(Sketcher.Constraint("Vertical", 4, 2, 6, 2))
sketch11.addConstraint(Sketcher.Constraint("Vertical", 3, 2, 7, 2))
sketch11.addConstraint(Sketcher.Constraint("Equal", 0, 9))
sketch11.addConstraint(Sketcher.Constraint("Equal", 5, 6))
sketch11.addConstraint(Sketcher.Constraint("Equal", 4, 7))
sketch11.addConstraint(Sketcher.Constraint("DistanceX", 8, 1, 8, 2, Q("12 mm")))
sketch11.addConstraint(Sketcher.Constraint("DistanceX", 0, 1, 0, 2, Q("30 mm")))
sketch11.addConstraint(Sketcher.Constraint("DistanceX", 3, 2, 3, 1, Q("27 mm")))
sketch11.addConstraint(Sketcher.Constraint("DistanceY", 1, 1, 1, 2, Q("48 mm")))
sketch11.addConstraint(Sketcher.Constraint("DistanceY", -1, 1, 0, 2, Q("70 mm")))
sketch11.addConstraint(Sketcher.Constraint("DistanceX", 4, 2, -1, 1, Q("7 mm")))
sketch11.addConstraint(Sketcher.Constraint("DistanceY", -1, 1, 4, 2, Q("134 mm")))
sketch11.addConstraint(Sketcher.Constraint("DistanceX", 5, 2, -1, 1, Q("2 mm")))
pad5 = doc.addObject("PartDesign::Pad", "Pad004")
body.addObject(pad5)
pad5.Profile = sketch11
pad5.Length = 30
pad5.Reversed = True

# Sketch on YZ plane
sketch12 = doc.addObject("Sketcher::SketchObject", "Sketch011")
body.addObject(sketch12)
sketch12.AttachmentSupport = (doc.YZ_Plane, [""])
sketch12.MapMode = "FlatFace"
sketch12.addGeometry(Part.LineSegment(App.Vector(33.1, -5, 0), App.Vector(33.1, -25.1, 0)), False)
sketch12.addGeometry(Part.LineSegment(App.Vector(33.1, -25.1, 0), App.Vector(31.1, -25.1, 0)), False)
sketch12.addGeometry(Part.LineSegment(App.Vector(31.1, -25.1, 0), App.Vector(31.1, -5, 0)), False)
sketch12.addGeometry(Part.LineSegment(App.Vector(31.1, -5, 0), App.Vector(33.1, -5, 0)), False)
sketch12.addConstraint(Sketcher.Constraint("Coincident", 0, 2, 1, 1))
sketch12.addConstraint(Sketcher.Constraint("Coincident", 1, 2, 2, 1))
sketch12.addConstraint(Sketcher.Constraint("Coincident", 2, 2, 3, 1))
sketch12.addConstraint(Sketcher.Constraint("Coincident", 3, 2, 0, 1))
sketch12.addConstraint(Sketcher.Constraint("Vertical", 0))
sketch12.addConstraint(Sketcher.Constraint("Horizontal", 1))
sketch12.addConstraint(Sketcher.Constraint("Vertical", 2))
sketch12.addConstraint(Sketcher.Constraint("Horizontal", 3))
sketch12.addConstraint(Sketcher.Constraint("DistanceX", 1, 2, 1, 1, Q("2.02 mm")))
sketch12.addConstraint(Sketcher.Constraint("DistanceY", 0, 2, 0, 1, Q("20.1 mm")))
sketch12.addConstraint(Sketcher.Constraint("DistanceX", -1, 1, 1, 2, Q("31.1 mm")))
sketch12.addConstraint(Sketcher.Constraint("DistanceY", 0, 2, -1, 1, Q("25.05 mm")))
pad6 = doc.addObject("PartDesign::Pad", "Pad005")
body.addObject(pad6)
pad6.Profile = sketch12
pad6.Length = 20

# Sketch on XY plane
sketch13 = doc.addObject("Sketcher::SketchObject", "Sketch012")
body.addObject(sketch13)
sketch13.AttachmentSupport = (doc.XY_Plane, [""])
sketch13.MapMode = "FlatFace"
sketch13.addGeometry(Part.LineSegment(App.Vector(-12, 100, 0), App.Vector(0, 100, 0)), False)
sketch13.addGeometry(Part.LineSegment(App.Vector(0, 100, 0), App.Vector(0, 88, 0)), False)
sketch13.addGeometry(Part.LineSegment(App.Vector(0, 88, 0), App.Vector(30, 88, 0)), False)
sketch13.addGeometry(Part.LineSegment(App.Vector(30, 88, 0), App.Vector(30, 118, 0)), False)
sketch13.addGeometry(Part.LineSegment(App.Vector(30, 118, 0), App.Vector(15, 136, 0)), False)
sketch13.addGeometry(Part.LineSegment(App.Vector(15, 136, 0), App.Vector(-12, 136, 0)), False)
sketch13.addGeometry(Part.LineSegment(App.Vector(-12, 136, 0), App.Vector(-7, 134, 0)), False)
sketch13.addGeometry(Part.LineSegment(App.Vector(-7, 134, 0), App.Vector(-2, 118, 0)), False)
sketch13.addGeometry(Part.LineSegment(App.Vector(-2, 118, 0), App.Vector(-7, 102, 0)), False)
sketch13.addGeometry(Part.LineSegment(App.Vector(-7, 102, 0), App.Vector(-12, 100, 0)), False)
sketch13.addConstraint(Sketcher.Constraint("Coincident", 0, 2, 1, 1))
sketch13.addConstraint(Sketcher.Constraint("Coincident", 1, 2, 2, 1))
sketch13.addConstraint(Sketcher.Constraint("Coincident", 2, 2, 3, 1))
sketch13.addConstraint(Sketcher.Constraint("Coincident", 3, 2, 4, 1))
sketch13.addConstraint(Sketcher.Constraint("Coincident", 4, 2, 5, 1))
sketch13.addConstraint(Sketcher.Constraint("Coincident", 5, 2, 6, 1))
sketch13.addConstraint(Sketcher.Constraint("Coincident", 6, 2, 7, 1))
sketch13.addConstraint(Sketcher.Constraint("Coincident", 7, 2, 8, 1))
sketch13.addConstraint(Sketcher.Constraint("Coincident", 8, 2, 9, 1))
sketch13.addConstraint(Sketcher.Constraint("Coincident", 9, 2, 0, 1))
sketch13.addConstraint(Sketcher.Constraint("Horizontal", 0))
sketch13.addConstraint(Sketcher.Constraint("Vertical", 1))
sketch13.addConstraint(Sketcher.Constraint("Horizontal", 2))
sketch13.addConstraint(Sketcher.Constraint("Vertical", 3))
sketch13.addConstraint(Sketcher.Constraint("Horizontal", 5))
sketch13.addConstraint(Sketcher.Constraint("PointOnObject", 0, 2, -2))
sketch13.addConstraint(Sketcher.Constraint("Horizontal", 3, 2, 7, 2))
sketch13.addConstraint(Sketcher.Constraint("Vertical", 6, 2, 8, 2))
sketch13.addConstraint(Sketcher.Constraint("Vertical", 5, 2, 9, 2))
sketch13.addConstraint(Sketcher.Constraint("Equal", 0, 1))
sketch13.addConstraint(Sketcher.Constraint("Equal", 2, 3))
sketch13.addConstraint(Sketcher.Constraint("Equal", 7, 8))
sketch13.addConstraint(Sketcher.Constraint("Equal", 6, 9))
sketch13.addConstraint(Sketcher.Constraint("DistanceX", 2, 1, 2, 2, Q("30 mm")))
sketch13.addConstraint(Sketcher.Constraint("DistanceX", 0, 1, 0, 2, Q("12 mm")))
sketch13.addConstraint(Sketcher.Constraint("DistanceX", 5, 2, 5, 1, Q("27 mm")))
sketch13.addConstraint(Sketcher.Constraint("DistanceY", -1, 1, 0, 2, Q("100 mm")))
sketch13.addConstraint(Sketcher.Constraint("DistanceX", 6, 2, -1, 1, Q("7 mm")))
sketch13.addConstraint(Sketcher.Constraint("DistanceY", -1, 1, 6, 2, Q("134 mm")))
sketch13.addConstraint(Sketcher.Constraint("DistanceX", 7, 2, -1, 1, Q("2 mm")))
pad7 = doc.addObject("PartDesign::Pad", "Pad006")
body.addObject(pad7)
pad7.Profile = sketch13
pad7.Length = 45
doc.recompute()

datumplane = doc.addObject("PartDesign::Plane", "DatumPlane")
body.addObject(datumplane)
datumplane.AttachmentSupport = (doc.XY_Plane, [""])
datumplane.MapMode = "FlatFace"
datumplane.AttachmentOffset = App.Placement(App.Vector(0, 0, -15), App.Rotation())
mirrored = doc.addObject("PartDesign::Mirrored", "Mirrored")
body.addObject(mirrored)
mirrored.Originals = [pad7]
mirrored.MirrorPlane = (datumplane, [""])
body.Tip = mirrored

doc.recompute()
